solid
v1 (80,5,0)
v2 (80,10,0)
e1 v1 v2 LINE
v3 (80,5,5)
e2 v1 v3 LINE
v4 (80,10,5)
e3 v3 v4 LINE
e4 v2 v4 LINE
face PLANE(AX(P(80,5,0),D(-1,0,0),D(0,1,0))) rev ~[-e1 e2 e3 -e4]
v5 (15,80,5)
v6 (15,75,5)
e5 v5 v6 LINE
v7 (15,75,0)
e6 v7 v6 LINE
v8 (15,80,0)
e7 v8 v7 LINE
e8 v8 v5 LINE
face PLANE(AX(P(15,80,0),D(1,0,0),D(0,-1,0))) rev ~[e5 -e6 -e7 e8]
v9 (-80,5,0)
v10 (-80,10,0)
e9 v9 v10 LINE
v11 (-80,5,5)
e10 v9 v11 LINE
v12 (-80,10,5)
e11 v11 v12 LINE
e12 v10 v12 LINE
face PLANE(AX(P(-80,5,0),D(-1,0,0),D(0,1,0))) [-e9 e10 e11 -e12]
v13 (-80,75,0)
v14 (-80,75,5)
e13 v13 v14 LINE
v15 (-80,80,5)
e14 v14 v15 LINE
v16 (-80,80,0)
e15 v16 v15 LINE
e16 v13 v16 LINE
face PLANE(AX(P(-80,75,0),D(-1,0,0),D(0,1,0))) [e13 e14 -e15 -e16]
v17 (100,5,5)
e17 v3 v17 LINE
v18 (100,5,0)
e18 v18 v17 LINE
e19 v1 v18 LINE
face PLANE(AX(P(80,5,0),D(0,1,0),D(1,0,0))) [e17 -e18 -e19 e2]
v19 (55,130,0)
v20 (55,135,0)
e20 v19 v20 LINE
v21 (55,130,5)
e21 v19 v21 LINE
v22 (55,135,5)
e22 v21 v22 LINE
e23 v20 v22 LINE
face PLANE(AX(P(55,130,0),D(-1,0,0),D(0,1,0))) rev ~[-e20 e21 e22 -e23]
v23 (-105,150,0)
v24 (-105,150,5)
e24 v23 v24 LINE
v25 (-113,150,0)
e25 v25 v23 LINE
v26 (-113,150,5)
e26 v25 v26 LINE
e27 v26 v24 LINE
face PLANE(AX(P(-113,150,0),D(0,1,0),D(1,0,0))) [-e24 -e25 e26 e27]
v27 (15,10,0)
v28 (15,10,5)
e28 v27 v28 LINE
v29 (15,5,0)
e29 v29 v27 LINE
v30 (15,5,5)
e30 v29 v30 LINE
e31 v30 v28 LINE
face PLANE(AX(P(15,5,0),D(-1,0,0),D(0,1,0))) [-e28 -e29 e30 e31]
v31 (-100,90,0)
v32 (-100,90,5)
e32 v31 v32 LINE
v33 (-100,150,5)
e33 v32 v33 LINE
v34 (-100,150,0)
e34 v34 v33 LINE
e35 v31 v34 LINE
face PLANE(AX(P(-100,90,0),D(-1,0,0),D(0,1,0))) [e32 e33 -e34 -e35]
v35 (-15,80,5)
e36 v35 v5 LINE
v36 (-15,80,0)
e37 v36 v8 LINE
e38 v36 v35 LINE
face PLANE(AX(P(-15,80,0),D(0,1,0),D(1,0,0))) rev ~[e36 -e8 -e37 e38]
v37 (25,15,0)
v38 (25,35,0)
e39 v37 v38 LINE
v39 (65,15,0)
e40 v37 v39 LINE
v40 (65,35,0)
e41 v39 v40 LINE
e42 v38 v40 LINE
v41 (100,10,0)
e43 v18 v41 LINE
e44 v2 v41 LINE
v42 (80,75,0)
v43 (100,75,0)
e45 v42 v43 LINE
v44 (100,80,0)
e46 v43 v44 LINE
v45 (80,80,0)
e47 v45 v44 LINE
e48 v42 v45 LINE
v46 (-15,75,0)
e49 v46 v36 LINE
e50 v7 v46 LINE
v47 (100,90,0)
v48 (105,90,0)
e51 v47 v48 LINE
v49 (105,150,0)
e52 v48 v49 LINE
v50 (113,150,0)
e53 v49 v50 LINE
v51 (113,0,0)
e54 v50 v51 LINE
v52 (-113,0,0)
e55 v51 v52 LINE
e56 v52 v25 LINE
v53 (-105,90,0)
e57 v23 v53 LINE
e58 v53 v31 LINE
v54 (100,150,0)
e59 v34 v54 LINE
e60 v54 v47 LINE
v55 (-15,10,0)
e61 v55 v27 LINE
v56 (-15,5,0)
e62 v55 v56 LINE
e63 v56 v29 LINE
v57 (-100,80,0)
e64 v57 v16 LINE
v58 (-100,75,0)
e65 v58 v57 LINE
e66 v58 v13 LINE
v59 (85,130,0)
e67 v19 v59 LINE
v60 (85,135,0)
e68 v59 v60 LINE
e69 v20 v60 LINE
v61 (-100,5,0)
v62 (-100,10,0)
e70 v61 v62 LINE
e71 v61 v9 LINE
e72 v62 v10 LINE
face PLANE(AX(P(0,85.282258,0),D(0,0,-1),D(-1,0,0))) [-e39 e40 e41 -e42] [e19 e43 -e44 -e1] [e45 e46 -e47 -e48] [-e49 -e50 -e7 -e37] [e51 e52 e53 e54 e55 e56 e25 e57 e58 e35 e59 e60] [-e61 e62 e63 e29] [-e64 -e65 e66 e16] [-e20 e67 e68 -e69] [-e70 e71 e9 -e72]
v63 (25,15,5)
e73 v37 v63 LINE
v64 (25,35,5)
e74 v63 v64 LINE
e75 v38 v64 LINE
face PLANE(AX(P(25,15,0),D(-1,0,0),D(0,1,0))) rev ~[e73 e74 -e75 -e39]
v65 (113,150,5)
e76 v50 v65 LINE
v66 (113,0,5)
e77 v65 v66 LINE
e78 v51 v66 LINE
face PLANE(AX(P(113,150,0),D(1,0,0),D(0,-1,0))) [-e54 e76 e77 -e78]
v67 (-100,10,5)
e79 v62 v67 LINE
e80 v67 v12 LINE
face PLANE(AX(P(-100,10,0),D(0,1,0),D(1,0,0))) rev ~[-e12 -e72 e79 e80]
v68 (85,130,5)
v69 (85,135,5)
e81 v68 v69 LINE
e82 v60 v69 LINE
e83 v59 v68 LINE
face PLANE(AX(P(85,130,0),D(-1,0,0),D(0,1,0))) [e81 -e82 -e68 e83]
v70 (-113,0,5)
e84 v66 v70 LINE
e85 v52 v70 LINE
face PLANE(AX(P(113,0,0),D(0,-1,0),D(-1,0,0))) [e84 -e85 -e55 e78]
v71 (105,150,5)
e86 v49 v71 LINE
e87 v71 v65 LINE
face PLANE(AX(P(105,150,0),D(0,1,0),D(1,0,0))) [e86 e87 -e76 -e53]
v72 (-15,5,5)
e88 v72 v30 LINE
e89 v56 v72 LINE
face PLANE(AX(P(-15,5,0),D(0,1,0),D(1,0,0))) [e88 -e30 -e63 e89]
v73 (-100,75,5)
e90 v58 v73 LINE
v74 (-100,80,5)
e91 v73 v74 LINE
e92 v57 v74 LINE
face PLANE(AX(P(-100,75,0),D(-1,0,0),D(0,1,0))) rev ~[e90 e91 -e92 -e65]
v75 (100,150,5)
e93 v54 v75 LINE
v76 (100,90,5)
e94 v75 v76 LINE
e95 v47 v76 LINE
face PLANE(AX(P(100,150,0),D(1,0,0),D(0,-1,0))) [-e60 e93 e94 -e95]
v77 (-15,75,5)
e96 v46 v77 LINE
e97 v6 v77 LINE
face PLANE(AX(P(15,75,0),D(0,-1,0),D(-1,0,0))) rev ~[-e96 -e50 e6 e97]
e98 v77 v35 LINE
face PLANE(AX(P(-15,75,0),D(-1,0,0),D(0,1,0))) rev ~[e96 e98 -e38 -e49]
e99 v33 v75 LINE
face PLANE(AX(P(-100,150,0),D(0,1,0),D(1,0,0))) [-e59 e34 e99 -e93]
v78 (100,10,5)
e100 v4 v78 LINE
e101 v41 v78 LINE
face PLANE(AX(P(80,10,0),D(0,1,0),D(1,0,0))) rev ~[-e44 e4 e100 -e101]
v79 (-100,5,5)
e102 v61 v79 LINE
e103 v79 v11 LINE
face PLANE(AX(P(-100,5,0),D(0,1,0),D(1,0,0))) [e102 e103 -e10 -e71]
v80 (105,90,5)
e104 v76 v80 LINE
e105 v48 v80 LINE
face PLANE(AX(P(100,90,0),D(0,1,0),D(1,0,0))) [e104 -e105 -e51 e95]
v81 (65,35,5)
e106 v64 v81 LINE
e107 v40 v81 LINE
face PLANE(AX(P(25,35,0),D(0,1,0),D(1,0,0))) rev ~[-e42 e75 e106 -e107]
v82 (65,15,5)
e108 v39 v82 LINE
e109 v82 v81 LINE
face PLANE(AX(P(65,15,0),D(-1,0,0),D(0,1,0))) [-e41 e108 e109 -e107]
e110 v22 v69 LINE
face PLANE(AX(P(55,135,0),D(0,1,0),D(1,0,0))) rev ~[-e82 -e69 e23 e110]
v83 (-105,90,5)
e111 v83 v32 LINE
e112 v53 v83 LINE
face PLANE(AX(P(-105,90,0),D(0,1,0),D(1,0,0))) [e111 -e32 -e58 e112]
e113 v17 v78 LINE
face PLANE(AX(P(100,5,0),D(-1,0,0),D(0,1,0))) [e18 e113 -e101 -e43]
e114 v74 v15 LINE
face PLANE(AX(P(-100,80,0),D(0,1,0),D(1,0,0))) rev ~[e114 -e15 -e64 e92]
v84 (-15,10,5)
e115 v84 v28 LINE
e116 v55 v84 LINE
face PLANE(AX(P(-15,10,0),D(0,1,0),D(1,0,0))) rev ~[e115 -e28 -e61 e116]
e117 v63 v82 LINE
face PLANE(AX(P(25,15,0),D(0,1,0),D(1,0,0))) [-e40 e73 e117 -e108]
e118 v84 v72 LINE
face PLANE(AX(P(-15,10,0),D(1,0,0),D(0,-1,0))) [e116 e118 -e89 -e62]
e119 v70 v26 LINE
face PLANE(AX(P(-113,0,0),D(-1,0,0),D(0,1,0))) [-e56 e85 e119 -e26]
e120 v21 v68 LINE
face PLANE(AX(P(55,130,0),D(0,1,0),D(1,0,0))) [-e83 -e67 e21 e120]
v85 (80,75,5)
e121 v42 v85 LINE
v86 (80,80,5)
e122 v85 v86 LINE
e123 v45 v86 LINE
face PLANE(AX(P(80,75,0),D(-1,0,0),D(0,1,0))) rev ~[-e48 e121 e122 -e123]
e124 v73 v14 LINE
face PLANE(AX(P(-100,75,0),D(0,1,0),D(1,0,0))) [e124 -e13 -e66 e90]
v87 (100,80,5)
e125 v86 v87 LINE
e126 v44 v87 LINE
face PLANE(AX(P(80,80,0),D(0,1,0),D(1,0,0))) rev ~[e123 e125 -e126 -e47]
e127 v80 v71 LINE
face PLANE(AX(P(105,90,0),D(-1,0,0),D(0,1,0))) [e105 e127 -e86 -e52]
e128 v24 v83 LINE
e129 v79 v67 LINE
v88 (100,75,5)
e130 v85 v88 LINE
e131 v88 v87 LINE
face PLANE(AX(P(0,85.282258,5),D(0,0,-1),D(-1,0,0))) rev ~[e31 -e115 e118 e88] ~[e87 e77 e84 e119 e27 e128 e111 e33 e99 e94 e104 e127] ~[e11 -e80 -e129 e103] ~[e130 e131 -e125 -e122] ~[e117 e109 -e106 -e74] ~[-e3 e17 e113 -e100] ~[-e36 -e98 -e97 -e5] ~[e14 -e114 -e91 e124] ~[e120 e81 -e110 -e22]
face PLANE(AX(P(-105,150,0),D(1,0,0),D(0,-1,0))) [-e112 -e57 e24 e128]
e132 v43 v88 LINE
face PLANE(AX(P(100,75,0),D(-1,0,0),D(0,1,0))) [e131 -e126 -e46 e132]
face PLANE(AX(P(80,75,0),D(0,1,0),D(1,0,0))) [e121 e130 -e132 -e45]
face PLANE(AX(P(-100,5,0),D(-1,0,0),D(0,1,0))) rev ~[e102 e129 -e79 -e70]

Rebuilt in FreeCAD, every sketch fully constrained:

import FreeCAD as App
import Part
import Sketcher
from FreeCAD import Vector
Q = App.Units.Quantity

doc = App.newDocument("Part")
body = doc.addObject("PartDesign::Body", "Body")

sketch1 = body.newObject("Sketcher::SketchObject", "Sketch")
sketch1.AttachmentSupport = (doc.getObject("XY_Plane"), [""])
sketch1.MapMode = "FlatFace"
sketch1.addGeometry([
    Part.LineSegment(Vector(100, 150, 0), Vector(-100, 150, 0)),
    Part.LineSegment(Vector(-100, 150, 0), Vector(-100, 90, 0)),
    Part.LineSegment(Vector(-100, 90, 0), Vector(-105, 90, 0)),
    Part.LineSegment(Vector(-105, 90, 0), Vector(-105, 150, 0)),
    Part.LineSegment(Vector(-105, 150, 0), Vector(-113, 150, 0)),
    Part.LineSegment(Vector(-113, 150, 0), Vector(-113, 0, 0)),
    Part.LineSegment(Vector(-113, 0, 0), Vector(113, 0, 0)),
    Part.LineSegment(Vector(113, 0, 0), Vector(113, 150, 0)),
    Part.LineSegment(Vector(113, 150, 0), Vector(105, 150, 0)),
    Part.LineSegment(Vector(105, 150, 0), Vector(105, 90, 0)),
    Part.LineSegment(Vector(105, 90, 0), Vector(100, 90, 0)),
    Part.LineSegment(Vector(100, 90, 0), Vector(100, 150, 0)),
    Part.LineSegment(Vector(80, 5, 0), Vector(80, 10, 0)),
    Part.LineSegment(Vector(80, 10, 0), Vector(100, 10, 0)),
    Part.LineSegment(Vector(100, 10, 0), Vector(100, 5, 0)),
    Part.LineSegment(Vector(100, 5, 0), Vector(80, 5, 0)),
    Part.LineSegment(Vector(25, 15, 0), Vector(25, 35, 0)),
    Part.LineSegment(Vector(25, 35, 0), Vector(65, 35, 0)),
    Part.LineSegment(Vector(65, 35, 0), Vector(65, 15, 0)),
    Part.LineSegment(Vector(65, 15, 0), Vector(25, 15, 0)),
    Part.LineSegment(Vector(-15, 5, 0), Vector(-15, 10, 0)),
    Part.LineSegment(Vector(-15, 10, 0), Vector(15, 10, 0)),
    Part.LineSegment(Vector(15, 10, 0), Vector(15, 5, 0)),
    Part.LineSegment(Vector(15, 5, 0), Vector(-15, 5, 0)),
    Part.LineSegment(Vector(-100, 5, 0), Vector(-100, 10, 0)),
    Part.LineSegment(Vector(-100, 10, 0), Vector(-80, 10, 0)),
    Part.LineSegment(Vector(-80, 10, 0), Vector(-80, 5, 0)),
    Part.LineSegment(Vector(-80, 5, 0), Vector(-100, 5, 0)),
    Part.LineSegment(Vector(80, 75, 0), Vector(80, 80, 0)),
    Part.LineSegment(Vector(80, 80, 0), Vector(100, 80, 0)),
    Part.LineSegment(Vector(100, 80, 0), Vector(100, 75, 0)),
    Part.LineSegment(Vector(100, 75, 0), Vector(80, 75, 0)),
    Part.LineSegment(Vector(55, 130, 0), Vector(55, 135, 0)),
    Part.LineSegment(Vector(55, 135, 0), Vector(85, 135, 0)),
    Part.LineSegment(Vector(85, 135, 0), Vector(85, 130, 0)),
    Part.LineSegment(Vector(85, 130, 0), Vector(55, 130, 0)),
    Part.LineSegment(Vector(-15, 80, 0), Vector(15, 80, 0)),
    Part.LineSegment(Vector(15, 80, 0), Vector(15, 75, 0)),
    Part.LineSegment(Vector(15, 75, 0), Vector(-15, 75, 0)),
    Part.LineSegment(Vector(-15, 75, 0), Vector(-15, 80, 0)),
    Part.LineSegment(Vector(-100, 75, 0), Vector(-100, 80, 0)),
    Part.LineSegment(Vector(-100, 80, 0), Vector(-80, 80, 0)),
    Part.LineSegment(Vector(-80, 80, 0), Vector(-80, 75, 0)),
    Part.LineSegment(Vector(-80, 75, 0), Vector(-100, 75, 0)),
], False)
sketch1.addConstraint([
    Sketcher.Constraint("Coincident", 0, 2, 1, 1),
    Sketcher.Constraint("Coincident", 1, 2, 2, 1),
    Sketcher.Constraint("Coincident", 2, 2, 3, 1),
    Sketcher.Constraint("Coincident", 3, 2, 4, 1),
    Sketcher.Constraint("Coincident", 4, 2, 5, 1),
    Sketcher.Constraint("Coincident", 5, 2, 6, 1),
    Sketcher.Constraint("Coincident", 6, 2, 7, 1),
    Sketcher.Constraint("Coincident", 7, 2, 8, 1),
    Sketcher.Constraint("Coincident", 8, 2, 9, 1),
    Sketcher.Constraint("Coincident", 9, 2, 10, 1),
    Sketcher.Constraint("Coincident", 10, 2, 11, 1),
    Sketcher.Constraint("Coincident", 11, 2, 0, 1),
    Sketcher.Constraint("Coincident", 12, 2, 13, 1),
    Sketcher.Constraint("Coincident", 13, 2, 14, 1),
    Sketcher.Constraint("Coincident", 14, 2, 15, 1),
    Sketcher.Constraint("Coincident", 15, 2, 12, 1),
    Sketcher.Constraint("Coincident", 16, 2, 17, 1),
    Sketcher.Constraint("Coincident", 17, 2, 18, 1),
    Sketcher.Constraint("Coincident", 18, 2, 19, 1),
    Sketcher.Constraint("Coincident", 19, 2, 16, 1),
    Sketcher.Constraint("Coincident", 20, 2, 21, 1),
    Sketcher.Constraint("Coincident", 21, 2, 22, 1),
    Sketcher.Constraint("Coincident", 22, 2, 23, 1),
    Sketcher.Constraint("Coincident", 23, 2, 20, 1),
    Sketcher.Constraint("Coincident", 24, 2, 25, 1),
    Sketcher.Constraint("Coincident", 25, 2, 26, 1),
    Sketcher.Constraint("Coincident", 26, 2, 27, 1),
    Sketcher.Constraint("Coincident", 27, 2, 24, 1),
    Sketcher.Constraint("Coincident", 28, 2, 29, 1),
    Sketcher.Constraint("Coincident", 29, 2, 30, 1),
    Sketcher.Constraint("Coincident", 30, 2, 31, 1),
    Sketcher.Constraint("Coincident", 31, 2, 28, 1),
    Sketcher.Constraint("Coincident", 32, 2, 33, 1),
    Sketcher.Constraint("Coincident", 33, 2, 34, 1),
    Sketcher.Constraint("Coincident", 34, 2, 35, 1),
    Sketcher.Constraint("Coincident", 35, 2, 32, 1),
    Sketcher.Constraint("Coincident", 36, 2, 37, 1),
    Sketcher.Constraint("Coincident", 37, 2, 38, 1),
    Sketcher.Constraint("Coincident", 38, 2, 39, 1),
    Sketcher.Constraint("Coincident", 39, 2, 36, 1),
    Sketcher.Constraint("Coincident", 40, 2, 41, 1),
    Sketcher.Constraint("Coincident", 41, 2, 42, 1),
    Sketcher.Constraint("Coincident", 42, 2, 43, 1),
    Sketcher.Constraint("Coincident", 43, 2, 40, 1),
    Sketcher.Constraint("Horizontal", 0),
    Sketcher.Constraint("Vertical", 1),
    Sketcher.Constraint("Horizontal", 2),
    Sketcher.Constraint("Vertical", 3),
    Sketcher.Constraint("Horizontal", 4),
    Sketcher.Constraint("Vertical", 5),
    Sketcher.Constraint("Horizontal", 6),
    Sketcher.Constraint("Vertical", 7),
    Sketcher.Constraint("Horizontal", 8),
    Sketcher.Constraint("Vertical", 9),
    Sketcher.Constraint("Horizontal", 10),
    Sketcher.Constraint("Vertical", 11),
    Sketcher.Constraint("Vertical", 12),
    Sketcher.Constraint("Horizontal", 13),
    Sketcher.Constraint("Vertical", 14),
    Sketcher.Constraint("Horizontal", 15),
    Sketcher.Constraint("Vertical", 16),
    Sketcher.Constraint("Horizontal", 17),
    Sketcher.Constraint("Vertical", 18),
    Sketcher.Constraint("Horizontal", 19),
    Sketcher.Constraint("Vertical", 20),
    Sketcher.Constraint("Horizontal", 21),
    Sketcher.Constraint("Vertical", 22),
    Sketcher.Constraint("Horizontal", 23),
    Sketcher.Constraint("Vertical", 24),
    Sketcher.Constraint("Horizontal", 25),
    Sketcher.Constraint("Vertical", 26),
    Sketcher.Constraint("Horizontal", 27),
    Sketcher.Constraint("Vertical", 28),
    Sketcher.Constraint("Horizontal", 29),
    Sketcher.Constraint("Vertical", 30),
    Sketcher.Constraint("Horizontal", 31),
    Sketcher.Constraint("Vertical", 32),
    Sketcher.Constraint("Horizontal", 33),
    Sketcher.Constraint("Vertical", 34),
    Sketcher.Constraint("Horizontal", 35),
    Sketcher.Constraint("Horizontal", 36),
    Sketcher.Constraint("Vertical", 37),
    Sketcher.Constraint("Horizontal", 38),
    Sketcher.Constraint("Vertical", 39),
    Sketcher.Constraint("Vertical", 40),
    Sketcher.Constraint("Horizontal", 41),
    Sketcher.Constraint("Vertical", 42),
    Sketcher.Constraint("Horizontal", 43),
    Sketcher.Constraint("Symmetric", 5, 2, 6, 2, -1, 1),
    Sketcher.Constraint("Symmetric", 3, 2, 8, 2, -2),
    Sketcher.Constraint("Symmetric", 1, 2, 10, 2, -2),
    Sketcher.Constraint("Symmetric", 13, 2, 24, 2, -2),
    Sketcher.Constraint("Symmetric", 15, 2, 26, 2, -2),
    Sketcher.Constraint("Symmetric", 29, 2, 40, 2, -2),
    Sketcher.Constraint("Symmetric", 31, 2, 42, 2, -2),
    Sketcher.Constraint("Horizontal", 0, 2, 3, 2),
    Sketcher.Constraint("Horizontal", 13, 2, 20, 2),
    Sketcher.Constraint("Horizontal", 15, 2, 22, 2),
    Sketcher.Constraint("Horizontal", 29, 2, 36, 2),
    Sketcher.Constraint("Horizontal", 31, 2, 37, 2),
    Sketcher.Constraint("Vertical", 11, 2, 13, 2),
    Sketcher.Constraint("Vertical", 15, 2, 28, 2),
    Sketcher.Constraint("Vertical", 14, 2, 29, 2),
    Sketcher.Constraint("Vertical", 22, 2, 36, 2),
    Sketcher.Constraint("Vertical", 23, 2, 38, 2),
    Sketcher.Constraint("Equal", 23, 33),
    Sketcher.Constraint("Equal", 10, 12),
    Sketcher.Constraint("Equal", 43, 16),
    Sketcher.Constraint("Equal", 26, 28),
    Sketcher.Constraint("Equal", 30, 32),
    Sketcher.Constraint("DistanceX", 0, 2, 0, 1, Q("200 mm")),
    Sketcher.Constraint("DistanceX", 2, 2, 2, 1, Q("5 mm")),
    Sketcher.Constraint("DistanceX", 4, 2, 4, 1, Q("8 mm")),
    Sketcher.Constraint("DistanceX", 13, 1, 13, 2, Q("20 mm")),
    Sketcher.Constraint("DistanceX", 17, 1, 17, 2, Q("40 mm")),
    Sketcher.Constraint("DistanceX", 21, 1, 21, 2, Q("30 mm")),
    Sketcher.Constraint("DistanceY", 1, 2, 1, 1, Q("60 mm")),
    Sketcher.Constraint("DistanceY", 5, 2, 5, 1, Q("150 mm")),
    Sketcher.Constraint("DistanceY", -1, 1, 12, 2, Q("10 mm")),
    Sketcher.Constraint("DistanceX", -1, 1, 16, 2, Q("25 mm")),
    Sketcher.Constraint("DistanceY", -1, 1, 16, 2, Q("35 mm")),
    Sketcher.Constraint("DistanceX", 20, 2, -1, 1, Q("15 mm")),
    Sketcher.Constraint("DistanceY", -1, 1, 28, 2, Q("80 mm")),
    Sketcher.Constraint("DistanceX", -1, 1, 32, 2, Q("55 mm")),
    Sketcher.Constraint("DistanceY", -1, 1, 32, 2, Q("135 mm")),
])
pad1 = body.newObject("PartDesign::Pad", "Pad")
pad1.Profile = sketch1
pad1.Length = 5

doc.recompute()
